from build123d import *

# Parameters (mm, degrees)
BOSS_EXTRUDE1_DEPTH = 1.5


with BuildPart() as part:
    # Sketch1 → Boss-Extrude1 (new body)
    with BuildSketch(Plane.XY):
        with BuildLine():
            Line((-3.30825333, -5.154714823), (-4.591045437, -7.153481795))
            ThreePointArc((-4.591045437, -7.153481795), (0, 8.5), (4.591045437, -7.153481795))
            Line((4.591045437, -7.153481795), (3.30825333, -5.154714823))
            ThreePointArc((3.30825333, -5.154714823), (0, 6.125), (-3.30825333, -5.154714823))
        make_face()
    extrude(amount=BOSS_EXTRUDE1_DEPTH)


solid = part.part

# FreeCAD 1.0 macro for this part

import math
import FreeCAD as App
import Part
import Sketcher
Q = App.Units.Quantity

doc = App.newDocument("Part")
body = doc.addObject("PartDesign::Body", "Body")

# Sketch on XY plane
sketch1 = doc.addObject("Sketcher::SketchObject", "Sketch")
body.addObject(sketch1)
sketch1.AttachmentSupport = (doc.XY_Plane, [""])
sketch1.MapMode = "FlatFace"
sketch1.addGeometry(Part.LineSegment(App.Vector(-4.6, -7.2, 0), App.Vector(-3.3, -5.2, 0)), False)
sketch1.addGeometry(Part.ArcOfCircle(Part.Circle(App.Vector(0, 0, 0), App.Vector(0, 0, 1), 6.1), math.radians(-57), math.radians(237)), False)
sketch1.addGeometry(Part.LineSegment(App.Vector(3.3, -5.2, 0), App.Vector(4.6, -7.2, 0)), False)
sketch1.addGeometry(Part.ArcOfCircle(Part.Circle(App.Vector(0, 0, 0), App.Vector(0, 0, 1), 8.5), math.radians(-57), math.radians(237)), False)
sketch1.addConstraint(Sketcher.Constraint("Coincident", 0, 2, 1, 2))
sketch1.addConstraint(Sketcher.Constraint("Coincident", 1, 1, 2, 1))
sketch1.addConstraint(Sketcher.Constraint("Coincident", 2, 2, 3, 1))
sketch1.addConstraint(Sketcher.Constraint("Coincident", 3, 2, 0, 1))
sketch1.addConstraint(Sketcher.Constraint("Coincident", 1, 3, -1, 1))
sketch1.addConstraint(Sketcher.Constraint("Coincident", 3, 3, -1, 1))
sketch1.addConstraint(Sketcher.Constraint("Horizontal", 0, 2, 1, 1))
sketch1.addConstraint(Sketcher.Constraint("Horizontal", 2, 2, 3, 2))
sketch1.addConstraint(Sketcher.Constraint("Radius", 3, Q("8.5 mm")))
sketch1.addConstraint(Sketcher.Constraint("Radius", 1, Q("6.125 mm")))
sketch1.addConstraint(Sketcher.Constraint("DistanceX", 0, 2, 2, 2, Q("7.899299 mm")))
sketch1.addConstraint(Sketcher.Constraint("DistanceY", 2, 2, -1, 1, Q("7.153482 mm")))
pad1 = doc.addObject("PartDesign::Pad", "Pad")
body.addObject(pad1)
pad1.Profile = sketch1
pad1.Length = 1.5

doc.recompute()
